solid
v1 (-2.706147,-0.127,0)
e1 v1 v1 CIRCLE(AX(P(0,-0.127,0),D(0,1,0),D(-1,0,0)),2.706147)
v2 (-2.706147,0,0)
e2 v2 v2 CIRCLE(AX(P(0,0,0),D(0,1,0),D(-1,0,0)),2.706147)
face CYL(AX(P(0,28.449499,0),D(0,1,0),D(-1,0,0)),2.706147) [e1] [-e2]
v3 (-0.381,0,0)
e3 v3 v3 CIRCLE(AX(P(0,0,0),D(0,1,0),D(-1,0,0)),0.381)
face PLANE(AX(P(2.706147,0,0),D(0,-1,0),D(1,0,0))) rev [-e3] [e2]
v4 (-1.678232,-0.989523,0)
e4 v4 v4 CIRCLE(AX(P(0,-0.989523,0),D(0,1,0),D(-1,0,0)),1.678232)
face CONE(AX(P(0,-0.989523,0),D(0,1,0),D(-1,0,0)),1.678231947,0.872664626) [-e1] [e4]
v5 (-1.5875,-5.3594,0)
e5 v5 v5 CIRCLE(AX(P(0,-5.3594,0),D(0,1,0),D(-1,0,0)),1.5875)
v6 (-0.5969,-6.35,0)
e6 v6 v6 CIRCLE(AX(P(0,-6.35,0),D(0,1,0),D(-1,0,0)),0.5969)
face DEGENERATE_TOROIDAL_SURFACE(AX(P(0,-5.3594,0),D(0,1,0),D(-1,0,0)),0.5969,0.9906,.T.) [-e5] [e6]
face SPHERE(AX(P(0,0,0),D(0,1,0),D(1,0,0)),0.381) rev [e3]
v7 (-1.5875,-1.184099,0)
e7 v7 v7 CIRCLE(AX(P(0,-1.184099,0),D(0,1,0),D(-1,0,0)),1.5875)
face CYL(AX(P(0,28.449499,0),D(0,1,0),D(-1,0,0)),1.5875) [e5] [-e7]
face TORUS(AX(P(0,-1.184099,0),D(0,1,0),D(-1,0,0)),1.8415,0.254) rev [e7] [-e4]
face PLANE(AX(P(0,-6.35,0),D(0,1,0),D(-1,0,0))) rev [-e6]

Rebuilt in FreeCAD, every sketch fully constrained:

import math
import FreeCAD as App
import Part
import Sketcher
from FreeCAD import Vector
Q = App.Units.Quantity

doc = App.newDocument("Part")
body = doc.addObject("PartDesign::Body", "Body")

sketch1 = body.newObject("Sketcher::SketchObject", "Sketch")
sketch1.AttachmentSupport = (doc.getObject("XY_Plane"), [""])
sketch1.MapMode = "FlatFace"
sketch1.addGeometry(Part.LineSegment(Vector(0, -0.38, 0), Vector(0, -6.35, 0)), False)
sketch1.addGeometry(Part.LineSegment(Vector(0, -6.35, 0), Vector(0.6, -6.35, 0)), False)
sketch1.addGeometry(Part.ArcOfCircle(Part.Circle(Vector(0.6, -5.36, 0), Vector(0, 0, 1), 0.99), math.radians(-90), math.radians(0)), False)
sketch1.addGeometry(Part.LineSegment(Vector(1.59, -5.36, 0), Vector(1.59, -1.18, 0)), False)
sketch1.addGeometry(Part.ArcOfCircle(Part.Circle(Vector(1.84, -1.18, 0), Vector(0, 0, 1), 0.25), math.radians(130), math.radians(180)), False)
sketch1.addGeometry(Part.LineSegment(Vector(1.68, -0.99, 0), Vector(2.71, -0.13, 0)), False)
sketch1.addGeometry(Part.LineSegment(Vector(2.71, -0.13, 0), Vector(2.71, 0, 0)), False)
sketch1.addGeometry(Part.LineSegment(Vector(2.71, 0, 0), Vector(0.38, 0, 0)), False)
sketch1.addGeometry(Part.ArcOfCircle(Part.Circle(Vector(0, 0, 0), Vector(0, 0, 1), 0.38), math.radians(-90), math.radians(0)), False)
sketch1.addConstraint(Sketcher.Constraint("Coincident", 0, 2, 1, 1))
sketch1.addConstraint(Sketcher.Constraint("Tangent", 1, 2, 2, 1))
sketch1.addConstraint(Sketcher.Constraint("Tangent", 2, 2, 3, 1))
sketch1.addConstraint(Sketcher.Constraint("Tangent", 3, 2, 4, 2))
sketch1.addConstraint(Sketcher.Constraint("Tangent", 4, 1, 5, 1))
sketch1.addConstraint(Sketcher.Constraint("Coincident", 5, 2, 6, 1))
sketch1.addConstraint(Sketcher.Constraint("Coincident", 6, 2, 7, 1))
sketch1.addConstraint(Sketcher.Constraint("Coincident", 7, 2, 8, 2))
sketch1.addConstraint(Sketcher.Constraint("Coincident", 8, 1, 0, 1))
sketch1.addConstraint(Sketcher.Constraint("Vertical", 0))
sketch1.addConstraint(Sketcher.Constraint("Horizontal", 1))
sketch1.addConstraint(Sketcher.Constraint("Vertical", 3))
sketch1.addConstraint(Sketcher.Constraint("Vertical", 6))
sketch1.addConstraint(Sketcher.Constraint("Horizontal", 7))
sketch1.addConstraint(Sketcher.Constraint("Coincident", 8, 3, -1, 1))
sketch1.addConstraint(Sketcher.Constraint("PointOnObject", 0, 2, -2))
sketch1.addConstraint(Sketcher.Constraint("PointOnObject", 6, 2, -1))
sketch1.addConstraint(Sketcher.Constraint("Radius", 4, Q("0.01 in")))
sketch1.addConstraint(Sketcher.Constraint("Angle", 5, Q("40 deg")))
sketch1.addConstraint(Sketcher.Constraint("Radius", 2, Q("0.039 in")))
sketch1.addConstraint(Sketcher.Constraint("Radius", 8, Q("0.015 in")))
sketch1.addConstraint(Sketcher.Constraint("DistanceY", 0, 2, 0, 1, Q("0.235 in")))
sketch1.addConstraint(Sketcher.Constraint("DistanceY", 6, 1, 6, 2, Q("0.005 in")))
sketch1.addConstraint(Sketcher.Constraint("DistanceX", 1, 1, 1, 2, Q("0.0235 in")))
sketch1.addConstraint(Sketcher.Constraint("DistanceY", 3, 1, 3, 2, Q("4.175301 mm")))
revolution = body.newObject("PartDesign::Revolution", "Revolution")
revolution.Profile = sketch1
revolution.ReferenceAxis = (sketch1, ["V_Axis"])
revolution.Angle = 360

doc.recompute()
